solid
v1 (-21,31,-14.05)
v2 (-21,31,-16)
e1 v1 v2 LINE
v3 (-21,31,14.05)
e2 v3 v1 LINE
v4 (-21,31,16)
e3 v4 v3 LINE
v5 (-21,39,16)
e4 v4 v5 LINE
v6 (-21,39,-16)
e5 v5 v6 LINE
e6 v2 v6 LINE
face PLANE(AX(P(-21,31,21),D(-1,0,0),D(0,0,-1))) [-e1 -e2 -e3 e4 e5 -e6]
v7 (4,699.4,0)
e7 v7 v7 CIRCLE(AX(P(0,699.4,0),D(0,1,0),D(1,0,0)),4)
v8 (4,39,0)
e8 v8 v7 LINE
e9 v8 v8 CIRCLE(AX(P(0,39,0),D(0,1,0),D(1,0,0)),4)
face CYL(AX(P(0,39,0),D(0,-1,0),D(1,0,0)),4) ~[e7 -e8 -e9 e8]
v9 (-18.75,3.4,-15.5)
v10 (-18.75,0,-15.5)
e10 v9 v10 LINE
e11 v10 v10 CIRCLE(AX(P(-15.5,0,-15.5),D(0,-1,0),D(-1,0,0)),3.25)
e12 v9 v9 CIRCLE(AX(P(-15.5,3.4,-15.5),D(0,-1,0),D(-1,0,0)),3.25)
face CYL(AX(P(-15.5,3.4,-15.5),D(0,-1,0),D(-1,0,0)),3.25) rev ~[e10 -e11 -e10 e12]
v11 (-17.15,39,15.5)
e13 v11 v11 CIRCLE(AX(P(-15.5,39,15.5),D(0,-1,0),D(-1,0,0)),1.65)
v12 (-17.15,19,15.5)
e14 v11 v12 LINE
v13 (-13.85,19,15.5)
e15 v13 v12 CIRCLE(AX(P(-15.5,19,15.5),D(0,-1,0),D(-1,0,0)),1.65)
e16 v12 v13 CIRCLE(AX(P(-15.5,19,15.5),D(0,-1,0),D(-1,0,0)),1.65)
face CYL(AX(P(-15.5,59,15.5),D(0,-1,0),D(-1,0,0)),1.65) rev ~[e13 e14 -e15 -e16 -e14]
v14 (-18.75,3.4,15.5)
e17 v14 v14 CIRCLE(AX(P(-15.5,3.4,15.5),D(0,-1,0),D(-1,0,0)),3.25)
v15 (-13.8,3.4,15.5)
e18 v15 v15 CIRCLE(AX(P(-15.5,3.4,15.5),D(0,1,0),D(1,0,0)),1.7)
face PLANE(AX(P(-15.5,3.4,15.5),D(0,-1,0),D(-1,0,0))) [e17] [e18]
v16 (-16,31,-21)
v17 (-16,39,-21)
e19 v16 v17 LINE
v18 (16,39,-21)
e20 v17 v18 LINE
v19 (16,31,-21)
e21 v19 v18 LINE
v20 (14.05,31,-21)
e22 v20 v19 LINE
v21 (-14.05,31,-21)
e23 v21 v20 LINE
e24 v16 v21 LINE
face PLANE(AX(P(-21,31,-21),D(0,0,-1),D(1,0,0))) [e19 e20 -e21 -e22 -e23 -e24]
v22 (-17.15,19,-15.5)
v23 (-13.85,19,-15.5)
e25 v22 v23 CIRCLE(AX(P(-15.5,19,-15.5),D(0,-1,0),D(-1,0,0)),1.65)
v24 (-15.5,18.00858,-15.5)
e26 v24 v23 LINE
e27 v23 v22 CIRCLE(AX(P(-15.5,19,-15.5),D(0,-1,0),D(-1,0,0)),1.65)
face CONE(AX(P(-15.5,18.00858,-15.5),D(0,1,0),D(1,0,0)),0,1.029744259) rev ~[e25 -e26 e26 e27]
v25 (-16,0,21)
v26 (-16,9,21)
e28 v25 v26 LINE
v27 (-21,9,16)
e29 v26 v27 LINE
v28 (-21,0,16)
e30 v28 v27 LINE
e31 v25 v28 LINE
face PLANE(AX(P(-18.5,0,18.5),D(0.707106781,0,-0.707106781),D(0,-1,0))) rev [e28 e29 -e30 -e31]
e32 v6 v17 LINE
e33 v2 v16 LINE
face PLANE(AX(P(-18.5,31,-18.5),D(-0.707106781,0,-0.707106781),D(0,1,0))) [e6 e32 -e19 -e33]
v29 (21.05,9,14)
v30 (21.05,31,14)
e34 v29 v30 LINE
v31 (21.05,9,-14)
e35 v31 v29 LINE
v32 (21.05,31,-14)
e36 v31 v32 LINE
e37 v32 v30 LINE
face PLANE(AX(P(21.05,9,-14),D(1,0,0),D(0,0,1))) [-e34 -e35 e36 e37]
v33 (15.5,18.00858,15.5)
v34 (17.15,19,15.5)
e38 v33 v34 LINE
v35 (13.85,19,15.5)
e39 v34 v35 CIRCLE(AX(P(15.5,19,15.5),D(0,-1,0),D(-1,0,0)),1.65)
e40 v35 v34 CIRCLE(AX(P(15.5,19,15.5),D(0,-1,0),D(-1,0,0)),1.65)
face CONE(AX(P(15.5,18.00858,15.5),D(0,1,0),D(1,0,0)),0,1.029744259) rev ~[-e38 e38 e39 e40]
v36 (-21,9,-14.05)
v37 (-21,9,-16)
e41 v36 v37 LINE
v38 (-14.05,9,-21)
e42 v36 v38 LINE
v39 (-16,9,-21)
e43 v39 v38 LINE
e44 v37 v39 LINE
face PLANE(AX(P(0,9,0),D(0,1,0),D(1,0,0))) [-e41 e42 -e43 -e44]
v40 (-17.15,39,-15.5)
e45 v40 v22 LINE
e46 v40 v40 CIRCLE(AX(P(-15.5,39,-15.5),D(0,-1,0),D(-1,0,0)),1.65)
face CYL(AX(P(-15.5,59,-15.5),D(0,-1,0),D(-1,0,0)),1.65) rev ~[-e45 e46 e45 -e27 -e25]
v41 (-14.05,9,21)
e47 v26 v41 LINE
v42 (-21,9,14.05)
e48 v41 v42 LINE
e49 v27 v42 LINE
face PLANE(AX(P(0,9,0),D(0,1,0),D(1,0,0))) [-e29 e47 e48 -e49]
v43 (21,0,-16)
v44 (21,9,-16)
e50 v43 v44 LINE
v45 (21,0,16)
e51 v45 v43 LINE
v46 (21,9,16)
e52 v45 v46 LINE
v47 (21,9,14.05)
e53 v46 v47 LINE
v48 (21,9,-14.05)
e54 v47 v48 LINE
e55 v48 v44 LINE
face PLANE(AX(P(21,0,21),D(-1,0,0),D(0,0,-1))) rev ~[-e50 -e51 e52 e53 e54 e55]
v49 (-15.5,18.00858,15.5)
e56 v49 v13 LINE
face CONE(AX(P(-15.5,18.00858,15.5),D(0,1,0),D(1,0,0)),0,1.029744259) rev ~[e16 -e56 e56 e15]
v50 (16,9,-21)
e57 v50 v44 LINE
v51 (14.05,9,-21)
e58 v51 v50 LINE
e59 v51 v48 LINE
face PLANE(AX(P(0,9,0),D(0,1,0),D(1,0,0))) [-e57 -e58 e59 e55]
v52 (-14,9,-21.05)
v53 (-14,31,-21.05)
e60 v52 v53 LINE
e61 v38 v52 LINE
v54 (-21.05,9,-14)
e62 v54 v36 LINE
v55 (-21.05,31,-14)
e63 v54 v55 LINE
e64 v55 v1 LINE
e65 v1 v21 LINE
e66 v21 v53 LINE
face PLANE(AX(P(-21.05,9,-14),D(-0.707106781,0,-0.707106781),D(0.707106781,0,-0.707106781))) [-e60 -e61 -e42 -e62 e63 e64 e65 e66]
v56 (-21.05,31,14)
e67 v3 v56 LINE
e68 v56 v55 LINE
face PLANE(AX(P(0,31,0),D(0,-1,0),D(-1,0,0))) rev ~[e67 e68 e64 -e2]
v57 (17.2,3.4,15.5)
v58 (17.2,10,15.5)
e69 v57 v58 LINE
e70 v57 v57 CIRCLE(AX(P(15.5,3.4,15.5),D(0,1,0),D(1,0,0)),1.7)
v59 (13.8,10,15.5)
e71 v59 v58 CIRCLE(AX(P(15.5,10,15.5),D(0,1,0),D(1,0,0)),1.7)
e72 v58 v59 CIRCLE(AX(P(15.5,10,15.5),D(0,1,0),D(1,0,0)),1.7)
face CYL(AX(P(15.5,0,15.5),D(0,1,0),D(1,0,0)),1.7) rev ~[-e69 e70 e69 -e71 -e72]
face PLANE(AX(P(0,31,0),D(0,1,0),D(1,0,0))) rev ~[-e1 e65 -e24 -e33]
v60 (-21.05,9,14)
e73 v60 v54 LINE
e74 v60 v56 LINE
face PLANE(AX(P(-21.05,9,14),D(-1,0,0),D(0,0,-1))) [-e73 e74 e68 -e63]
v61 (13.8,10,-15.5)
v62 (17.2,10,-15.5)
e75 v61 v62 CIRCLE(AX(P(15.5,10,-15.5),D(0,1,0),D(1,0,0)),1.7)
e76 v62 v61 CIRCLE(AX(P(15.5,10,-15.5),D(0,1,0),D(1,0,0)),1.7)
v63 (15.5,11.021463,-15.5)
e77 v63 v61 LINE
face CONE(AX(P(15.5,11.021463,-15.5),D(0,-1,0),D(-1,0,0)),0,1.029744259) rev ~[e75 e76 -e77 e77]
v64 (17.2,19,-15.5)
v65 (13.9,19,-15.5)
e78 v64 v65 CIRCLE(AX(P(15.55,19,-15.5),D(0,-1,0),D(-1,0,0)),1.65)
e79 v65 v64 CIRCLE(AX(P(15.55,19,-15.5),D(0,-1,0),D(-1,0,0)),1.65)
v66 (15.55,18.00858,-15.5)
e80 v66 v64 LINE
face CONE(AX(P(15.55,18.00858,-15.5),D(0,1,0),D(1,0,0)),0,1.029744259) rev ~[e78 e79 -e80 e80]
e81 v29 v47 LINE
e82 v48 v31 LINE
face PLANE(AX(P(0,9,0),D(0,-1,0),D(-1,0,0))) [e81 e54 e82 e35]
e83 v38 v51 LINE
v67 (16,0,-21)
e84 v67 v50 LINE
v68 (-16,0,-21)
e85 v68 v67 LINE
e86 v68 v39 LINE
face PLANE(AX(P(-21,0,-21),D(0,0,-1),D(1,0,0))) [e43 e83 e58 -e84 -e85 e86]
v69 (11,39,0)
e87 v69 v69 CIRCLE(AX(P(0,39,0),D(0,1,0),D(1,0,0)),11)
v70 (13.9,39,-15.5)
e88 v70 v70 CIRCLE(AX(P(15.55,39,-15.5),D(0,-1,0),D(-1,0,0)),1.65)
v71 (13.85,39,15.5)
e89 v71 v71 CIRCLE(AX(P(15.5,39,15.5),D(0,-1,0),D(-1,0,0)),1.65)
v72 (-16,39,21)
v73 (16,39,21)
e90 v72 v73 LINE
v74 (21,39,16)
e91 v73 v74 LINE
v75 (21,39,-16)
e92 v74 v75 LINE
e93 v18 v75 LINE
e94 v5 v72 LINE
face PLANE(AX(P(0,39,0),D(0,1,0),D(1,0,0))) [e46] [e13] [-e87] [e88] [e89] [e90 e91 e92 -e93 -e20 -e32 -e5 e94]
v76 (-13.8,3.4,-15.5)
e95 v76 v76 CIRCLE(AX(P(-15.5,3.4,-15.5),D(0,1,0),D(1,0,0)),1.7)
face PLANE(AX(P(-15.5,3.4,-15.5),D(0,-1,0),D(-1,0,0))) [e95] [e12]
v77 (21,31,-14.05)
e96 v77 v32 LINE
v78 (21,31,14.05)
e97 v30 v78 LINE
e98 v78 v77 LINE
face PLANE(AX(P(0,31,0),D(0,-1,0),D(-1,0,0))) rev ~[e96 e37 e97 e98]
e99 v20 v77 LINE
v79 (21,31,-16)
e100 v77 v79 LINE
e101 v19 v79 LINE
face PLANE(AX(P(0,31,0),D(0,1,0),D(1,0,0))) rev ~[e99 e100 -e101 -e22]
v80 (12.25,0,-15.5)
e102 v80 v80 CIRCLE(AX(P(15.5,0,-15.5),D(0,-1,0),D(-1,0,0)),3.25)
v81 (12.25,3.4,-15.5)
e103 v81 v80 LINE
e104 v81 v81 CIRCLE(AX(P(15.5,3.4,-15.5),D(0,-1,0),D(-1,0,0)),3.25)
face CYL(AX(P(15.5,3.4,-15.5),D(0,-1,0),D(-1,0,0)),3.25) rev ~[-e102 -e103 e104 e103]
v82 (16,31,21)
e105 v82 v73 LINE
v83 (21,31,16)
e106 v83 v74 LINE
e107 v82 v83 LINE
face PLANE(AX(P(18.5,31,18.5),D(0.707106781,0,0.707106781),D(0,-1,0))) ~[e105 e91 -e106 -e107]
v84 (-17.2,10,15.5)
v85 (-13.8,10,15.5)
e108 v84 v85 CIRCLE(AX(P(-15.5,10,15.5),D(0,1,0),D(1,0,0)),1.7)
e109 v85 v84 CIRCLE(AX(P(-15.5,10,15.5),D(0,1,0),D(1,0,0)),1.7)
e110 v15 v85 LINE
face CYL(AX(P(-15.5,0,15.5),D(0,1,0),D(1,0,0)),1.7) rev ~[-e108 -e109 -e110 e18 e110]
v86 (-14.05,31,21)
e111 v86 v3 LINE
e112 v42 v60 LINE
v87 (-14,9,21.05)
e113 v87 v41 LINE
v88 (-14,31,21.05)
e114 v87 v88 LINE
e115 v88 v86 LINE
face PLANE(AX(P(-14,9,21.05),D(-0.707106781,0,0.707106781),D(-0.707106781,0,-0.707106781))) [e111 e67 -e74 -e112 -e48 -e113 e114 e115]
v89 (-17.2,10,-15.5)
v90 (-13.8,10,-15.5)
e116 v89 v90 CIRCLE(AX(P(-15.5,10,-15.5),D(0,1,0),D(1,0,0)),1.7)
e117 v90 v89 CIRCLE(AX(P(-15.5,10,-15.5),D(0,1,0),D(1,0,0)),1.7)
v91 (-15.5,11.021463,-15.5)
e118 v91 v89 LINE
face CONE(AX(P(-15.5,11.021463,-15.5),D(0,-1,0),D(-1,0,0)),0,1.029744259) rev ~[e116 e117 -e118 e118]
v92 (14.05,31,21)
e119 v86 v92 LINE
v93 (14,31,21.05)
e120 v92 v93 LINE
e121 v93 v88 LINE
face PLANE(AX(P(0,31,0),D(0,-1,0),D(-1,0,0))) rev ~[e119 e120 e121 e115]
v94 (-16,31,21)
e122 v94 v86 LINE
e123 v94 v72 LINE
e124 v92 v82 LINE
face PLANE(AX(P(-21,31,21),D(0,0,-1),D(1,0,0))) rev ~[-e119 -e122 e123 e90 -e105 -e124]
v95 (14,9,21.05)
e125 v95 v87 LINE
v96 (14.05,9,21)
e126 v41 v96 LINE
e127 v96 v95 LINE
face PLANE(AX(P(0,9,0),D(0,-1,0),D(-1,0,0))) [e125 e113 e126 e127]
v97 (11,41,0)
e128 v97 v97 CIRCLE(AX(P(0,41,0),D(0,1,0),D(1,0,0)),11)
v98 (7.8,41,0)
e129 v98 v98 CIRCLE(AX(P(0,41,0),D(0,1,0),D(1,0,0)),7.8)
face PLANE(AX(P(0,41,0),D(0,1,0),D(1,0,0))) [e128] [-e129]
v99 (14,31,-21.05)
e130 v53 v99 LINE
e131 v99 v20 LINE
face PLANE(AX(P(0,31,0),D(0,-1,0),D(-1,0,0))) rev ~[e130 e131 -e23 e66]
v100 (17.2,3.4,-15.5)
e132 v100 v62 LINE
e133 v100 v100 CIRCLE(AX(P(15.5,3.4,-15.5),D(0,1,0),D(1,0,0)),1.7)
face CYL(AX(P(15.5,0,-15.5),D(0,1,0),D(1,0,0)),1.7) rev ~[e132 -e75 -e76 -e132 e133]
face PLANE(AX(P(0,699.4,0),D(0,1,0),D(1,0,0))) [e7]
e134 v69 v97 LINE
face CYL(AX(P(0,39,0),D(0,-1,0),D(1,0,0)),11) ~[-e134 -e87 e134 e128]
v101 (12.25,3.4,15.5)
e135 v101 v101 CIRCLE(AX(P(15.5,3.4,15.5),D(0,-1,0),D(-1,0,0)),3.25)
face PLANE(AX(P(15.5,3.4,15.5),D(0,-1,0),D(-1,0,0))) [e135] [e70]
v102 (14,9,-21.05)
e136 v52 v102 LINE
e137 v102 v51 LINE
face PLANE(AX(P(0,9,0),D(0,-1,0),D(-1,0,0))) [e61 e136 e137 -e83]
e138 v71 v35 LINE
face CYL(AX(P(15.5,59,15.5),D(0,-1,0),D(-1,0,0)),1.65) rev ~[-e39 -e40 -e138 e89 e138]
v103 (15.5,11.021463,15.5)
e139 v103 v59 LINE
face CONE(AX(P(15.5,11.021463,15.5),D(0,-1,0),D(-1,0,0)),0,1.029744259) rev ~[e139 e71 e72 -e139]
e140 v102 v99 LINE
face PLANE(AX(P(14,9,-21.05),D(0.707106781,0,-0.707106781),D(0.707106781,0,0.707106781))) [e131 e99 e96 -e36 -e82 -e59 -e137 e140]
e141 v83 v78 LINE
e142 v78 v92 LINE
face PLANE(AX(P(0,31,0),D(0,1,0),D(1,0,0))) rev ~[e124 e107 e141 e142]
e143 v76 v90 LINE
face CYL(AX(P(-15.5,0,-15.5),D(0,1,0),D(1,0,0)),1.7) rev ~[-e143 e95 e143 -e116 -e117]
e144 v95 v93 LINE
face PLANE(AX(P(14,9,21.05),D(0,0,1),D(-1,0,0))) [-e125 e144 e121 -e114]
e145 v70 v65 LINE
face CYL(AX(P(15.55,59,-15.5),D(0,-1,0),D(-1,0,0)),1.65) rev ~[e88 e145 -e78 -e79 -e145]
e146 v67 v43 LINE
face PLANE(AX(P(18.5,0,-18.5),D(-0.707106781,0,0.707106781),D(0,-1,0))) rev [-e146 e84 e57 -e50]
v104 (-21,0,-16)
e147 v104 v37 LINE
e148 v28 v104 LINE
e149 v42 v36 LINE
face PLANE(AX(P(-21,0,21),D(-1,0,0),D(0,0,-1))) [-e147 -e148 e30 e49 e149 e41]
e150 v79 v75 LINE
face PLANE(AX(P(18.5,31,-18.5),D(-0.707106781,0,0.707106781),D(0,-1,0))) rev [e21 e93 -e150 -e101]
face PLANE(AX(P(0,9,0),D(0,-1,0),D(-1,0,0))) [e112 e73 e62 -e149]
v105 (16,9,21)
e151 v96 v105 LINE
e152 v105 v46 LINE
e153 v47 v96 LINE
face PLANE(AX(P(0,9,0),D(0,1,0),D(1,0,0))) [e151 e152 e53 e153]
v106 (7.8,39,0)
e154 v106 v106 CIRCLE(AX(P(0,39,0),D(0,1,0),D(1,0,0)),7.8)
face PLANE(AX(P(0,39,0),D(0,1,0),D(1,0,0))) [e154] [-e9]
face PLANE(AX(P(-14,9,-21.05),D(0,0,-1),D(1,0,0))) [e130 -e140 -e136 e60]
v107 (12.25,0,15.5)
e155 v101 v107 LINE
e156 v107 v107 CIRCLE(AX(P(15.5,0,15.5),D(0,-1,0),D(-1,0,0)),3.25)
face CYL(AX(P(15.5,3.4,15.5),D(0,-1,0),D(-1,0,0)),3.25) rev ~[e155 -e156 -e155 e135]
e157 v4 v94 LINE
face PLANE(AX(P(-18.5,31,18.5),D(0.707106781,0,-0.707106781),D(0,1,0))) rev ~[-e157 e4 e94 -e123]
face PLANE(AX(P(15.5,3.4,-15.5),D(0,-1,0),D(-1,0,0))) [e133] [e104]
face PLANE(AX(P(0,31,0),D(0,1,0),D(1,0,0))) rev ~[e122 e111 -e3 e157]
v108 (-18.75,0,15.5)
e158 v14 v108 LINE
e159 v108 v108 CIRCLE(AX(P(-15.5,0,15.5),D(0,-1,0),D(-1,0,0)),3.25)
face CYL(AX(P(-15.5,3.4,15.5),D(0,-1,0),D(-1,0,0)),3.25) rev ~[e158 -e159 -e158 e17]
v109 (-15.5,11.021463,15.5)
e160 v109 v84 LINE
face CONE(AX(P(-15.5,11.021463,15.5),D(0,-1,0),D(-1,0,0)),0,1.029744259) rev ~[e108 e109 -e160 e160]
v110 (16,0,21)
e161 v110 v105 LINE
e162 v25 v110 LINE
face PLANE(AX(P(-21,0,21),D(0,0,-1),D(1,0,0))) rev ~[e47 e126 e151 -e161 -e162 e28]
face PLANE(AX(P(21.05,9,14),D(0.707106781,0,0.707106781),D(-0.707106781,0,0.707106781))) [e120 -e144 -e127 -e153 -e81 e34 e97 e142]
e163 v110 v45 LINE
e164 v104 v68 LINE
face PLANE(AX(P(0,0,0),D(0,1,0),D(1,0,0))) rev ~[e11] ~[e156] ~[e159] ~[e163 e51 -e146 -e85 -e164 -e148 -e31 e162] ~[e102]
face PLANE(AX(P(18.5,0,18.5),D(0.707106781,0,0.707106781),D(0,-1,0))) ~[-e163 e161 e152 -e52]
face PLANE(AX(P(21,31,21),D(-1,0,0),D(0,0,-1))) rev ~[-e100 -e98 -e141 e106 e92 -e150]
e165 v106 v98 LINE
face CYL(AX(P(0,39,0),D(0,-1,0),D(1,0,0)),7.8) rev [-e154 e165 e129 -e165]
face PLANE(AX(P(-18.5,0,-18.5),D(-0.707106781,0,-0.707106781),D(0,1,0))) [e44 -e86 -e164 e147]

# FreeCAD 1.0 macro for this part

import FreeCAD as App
import Part
import Sketcher

V = App.Vector
Q = App.Units.Quantity


def edges_at(feature, points):
    """Names of the edges that pass closest to the given points."""
    edges = feature.Shape.Edges
    near = lambda p: min(range(len(edges)), key=lambda i: edges[i].distToShape(Part.Vertex(*p))[0])
    return sorted({f"Edge{near(p) + 1}" for p in points})


def add_polygon(sketch, points):
    """Adds a closed chain of lines whose ends are joined by coincident constraints."""
    first, n = sketch.GeometryCount, len(points)
    for a, b in zip(points, points[1:] + points[:1]):
        sketch.addGeometry(Part.LineSegment(App.Vector(*a, 0), App.Vector(*b, 0)), False)
    for i in range(n):
        sketch.addConstraint(Sketcher.Constraint("Coincident", first + i, 2, first + (i + 1) % n, 1))

doc = App.newDocument("Part")
body = doc.addObject("PartDesign::Body", "Body")

# Sketch on XZ plane
sketch1 = body.newObject("Sketcher::SketchObject", "Sketch")
sketch1.AttachmentSupport = (doc.getObject("XZ_Plane"), [""])
sketch1.MapMode = "FlatFace"
add_polygon(sketch1, [(-21, -21), (-21, 21), (21, 21), (21, -21)])  # lines 0-3
sketch1.addConstraint(Sketcher.Constraint("Vertical", 0))
sketch1.addConstraint(Sketcher.Constraint("Horizontal", 1))
sketch1.addConstraint(Sketcher.Constraint("Vertical", 2))
sketch1.addConstraint(Sketcher.Constraint("Horizontal", 3))
sketch1.addConstraint(Sketcher.Constraint("Symmetric", 0, 2, 2, 2, -1, 1))
sketch1.addConstraint(Sketcher.Constraint("Equal", 3, 0))
sketch1.addConstraint(Sketcher.Constraint("DistanceX", 1, 1, 1, 2, Q("42 mm")))
pad1 = body.newObject("PartDesign::Pad", "Pad")
pad1.Profile = sketch1
pad1.Length = 9
pad1.Reversed = True

# Sketch on XZ plane
sketch2 = body.newObject("Sketcher::SketchObject", "Sketch001")
sketch2.AttachmentSupport = (doc.getObject("XZ_Plane"), [""])
sketch2.MapMode = "FlatFace"
sketch2.AttachmentOffset = App.Placement(V(0, 0, -9), App.Rotation())
add_polygon(sketch2, [(21.05, -14), (14, -21.05), (-14, -21.05), (-21.05, -14), (-21.05, 14), (-14, 21.05), (14, 21.05), (21.05, 14)])  # lines 0-7
sketch2.addConstraint(Sketcher.Constraint("Horizontal", 1))
sketch2.addConstraint(Sketcher.Constraint("Vertical", 3))
sketch2.addConstraint(Sketcher.Constraint("Horizontal", 5))
sketch2.addConstraint(Sketcher.Constraint("Vertical", 7))
sketch2.addConstraint(Sketcher.Constraint("Symmetric", 0, 2, 4, 2, -1, 1))
sketch2.addConstraint(Sketcher.Constraint("Symmetric", 2, 2, 6, 2, -1, 1))
sketch2.addConstraint(Sketcher.Constraint("Perpendicular", 0, 2))
sketch2.addConstraint(Sketcher.Constraint("Perpendicular", 2, 4))
sketch2.addConstraint(Sketcher.Constraint("Perpendicular", 4, 6))
sketch2.addConstraint(Sketcher.Constraint("Horizontal", 3, 2, 6, 2))
sketch2.addConstraint(Sketcher.Constraint("Vertical", 1, 2, 4, 2))
sketch2.addConstraint(Sketcher.Constraint("Equal", 5, 3))
sketch2.addConstraint(Sketcher.Constraint("DistanceX", 1, 2, 1, 1, Q("28 mm")))
sketch2.addConstraint(Sketcher.Constraint("DistanceY", 1, 2, 4, 2, Q("42.1 mm")))
pad2 = body.newObject("PartDesign::Pad", "Pad001")
pad2.Profile = sketch2
pad2.Length = 22
pad2.Reversed = True

# Sketch on XZ plane
sketch3 = body.newObject("Sketcher::SketchObject", "Sketch002")
sketch3.AttachmentSupport = (doc.getObject("XZ_Plane"), [""])
sketch3.MapMode = "FlatFace"
sketch3.AttachmentOffset = App.Placement(V(0, 0, -31), App.Rotation())
add_polygon(sketch3, [(-21, -21), (-21, 21), (21, 21), (21, -21)])  # lines 0-3
sketch3.addConstraint(Sketcher.Constraint("Vertical", 0))
sketch3.addConstraint(Sketcher.Constraint("Horizontal", 1))
sketch3.addConstraint(Sketcher.Constraint("Vertical", 2))
sketch3.addConstraint(Sketcher.Constraint("Horizontal", 3))
sketch3.addConstraint(Sketcher.Constraint("Symmetric", 0, 2, 2, 2, -1, 1))
sketch3.addConstraint(Sketcher.Constraint("Equal", 3, 0))
sketch3.addConstraint(Sketcher.Constraint("DistanceX", 1, 1, 1, 2, Q("42 mm")))
pad3 = body.newObject("PartDesign::Pad", "Pad002")
pad3.Profile = sketch3
pad3.Length = 8
pad3.Reversed = True

# Sketch on XZ plane
sketch4 = body.newObject("Sketcher::SketchObject", "Sketch003")
sketch4.AttachmentSupport = (doc.getObject("XZ_Plane"), [""])
sketch4.MapMode = "FlatFace"
sketch4.AttachmentOffset = App.Placement(V(0, 0, -39), App.Rotation())
sketch4.addGeometry(Part.Circle(V(0, 0, 0), V(0, 0, 1), 11), False)
sketch4.addGeometry(Part.Circle(V(0, 0, 0), V(0, 0, 1), 7.8), False)
sketch4.addConstraint(Sketcher.Constraint("Coincident", 0, 3, -1, 1))
sketch4.addConstraint(Sketcher.Constraint("Coincident", 1, 3, -1, 1))
sketch4.addConstraint(Sketcher.Constraint("Diameter", 0, Q("22 mm")))
sketch4.addConstraint(Sketcher.Constraint("Diameter", 1, Q("15.6 mm")))
pad4 = body.newObject("PartDesign::Pad", "Pad003")
pad4.Profile = sketch4
pad4.Length = 2
pad4.Reversed = True

# Sketch on XZ plane
sketch5 = body.newObject("Sketcher::SketchObject", "Sketch004")
sketch5.AttachmentSupport = (doc.getObject("XZ_Plane"), [""])
sketch5.MapMode = "FlatFace"
sketch5.AttachmentOffset = App.Placement(V(0, 0, -39), App.Rotation())
sketch5.addGeometry(Part.Circle(V(-15.5, 15.5, 0), V(0, 0, 1), 1.65), False)
sketch5.addGeometry(Part.Circle(V(-15.5, -15.5, 0), V(0, 0, 1), 1.65), False)
sketch5.addGeometry(Part.Circle(V(15.55, -15.5, 0), V(0, 0, 1), 1.65), False)
sketch5.addGeometry(Part.Circle(V(15.5, 15.5, 0), V(0, 0, 1), 1.65), False)
sketch5.addConstraint(Sketcher.Constraint("Equal", 0, 1))
sketch5.addConstraint(Sketcher.Constraint("Equal", 1, 2))
sketch5.addConstraint(Sketcher.Constraint("Equal", 2, 3))
sketch5.addConstraint(Sketcher.Constraint("Symmetric", 1, 3, 3, 3, -1, 1))
sketch5.addConstraint(Sketcher.Constraint("Symmetric", 0, 3, 3, 3, -2))
sketch5.addConstraint(Sketcher.Constraint("Horizontal", 1, 3, 2, 3))
sketch5.addConstraint(Sketcher.Constraint("Diameter", 0, Q("3.3 mm")))
sketch5.addConstraint(Sketcher.Constraint("DistanceY", 1, 3, 0, 3, Q("31 mm")))
sketch5.addConstraint(Sketcher.Constraint("DistanceX", 0, 3, 3, 3, Q("31 mm")))
sketch5.addConstraint(Sketcher.Constraint("DistanceX", -1, 1, 2, 3, Q("15.55 mm")))
doc.recompute()
hole = body.newObject("PartDesign::Hole", "Hole")
hole.Profile = sketch5
hole.ThreadType = "None"
hole.Diameter = 3.3
hole.DepthType = "Dimension"
hole.Depth = 20
hole.DrillPoint = "Angled"
hole.DrillPointAngle = 118
hole.Reversed = True
doc.recompute()

chamfer = body.newObject("PartDesign::Chamfer", "Chamfer")
chamfer.Base = (hole, edges_at(hole, [
    (-21, 35, -21),
    (-21, 35, 21),
    (21, 35, 21),
    (21, 35, -21),
    (21, 4.5, -21),
    (-21, 4.5, -21),
    (-21, 4.5, 21),
    (21, 4.5, 21),
]))
chamfer.Size = 5

# Sketch on XZ plane
sketch6 = body.newObject("Sketcher::SketchObject", "Sketch005")
sketch6.AttachmentSupport = (doc.getObject("XZ_Plane"), [""])
sketch6.MapMode = "FlatFace"
sketch6.addGeometry(Part.Circle(V(15.5, -15.5, 0), V(0, 0, 1), 1.7), False)
sketch6.addGeometry(Part.Circle(V(-15.5, -15.5, 0), V(0, 0, 1), 1.7), False)
sketch6.addGeometry(Part.Circle(V(-15.5, 15.5, 0), V(0, 0, 1), 1.7), False)
sketch6.addGeometry(Part.Circle(V(15.5, 15.5, 0), V(0, 0, 1), 1.7), False)
sketch6.addConstraint(Sketcher.Constraint("Equal", 0, 1))
sketch6.addConstraint(Sketcher.Constraint("Equal", 1, 2))
sketch6.addConstraint(Sketcher.Constraint("Equal", 2, 3))
sketch6.addConstraint(Sketcher.Constraint("Symmetric", 0, 3, 2, 3, -1, 1))
sketch6.addConstraint(Sketcher.Constraint("Symmetric", 1, 3, 3, 3, -1, 1))
sketch6.addConstraint(Sketcher.Constraint("Symmetric", 0, 3, 1, 3, -2))
sketch6.addConstraint(Sketcher.Constraint("Diameter", 0, Q("3.4 mm")))
sketch6.addConstraint(Sketcher.Constraint("DistanceX", 1, 3, 0, 3, Q("31 mm")))
sketch6.addConstraint(Sketcher.Constraint("DistanceY", 1, 3, 2, 3, Q("31 mm")))
doc.recompute()
hole2 = body.newObject("PartDesign::Hole", "Hole001")
hole2.Profile = sketch6
hole2.ThreadType = "None"
hole2.Diameter = 3.4
hole2.DepthType = "Dimension"
hole2.Depth = 10
hole2.DrillPoint = "Angled"
hole2.DrillPointAngle = 118
hole2.HoleCutType = "Counterbore"
hole2.HoleCutDiameter = 6.5
hole2.HoleCutDepth = 3.4

# Sketch on XZ plane
sketch7 = body.newObject("Sketcher::SketchObject", "Sketch006")
sketch7.AttachmentSupport = (doc.getObject("XZ_Plane"), [""])
sketch7.MapMode = "FlatFace"
sketch7.AttachmentOffset = App.Placement(V(0, 0, -39), App.Rotation())
sketch7.addGeometry(Part.Circle(V(0, 0, 0), V(0, 0, 1), 4), False)
sketch7.addConstraint(Sketcher.Constraint("Coincident", 0, 3, -1, 1))
sketch7.addConstraint(Sketcher.Constraint("Diameter", 0, Q("8 mm")))
pad5 = body.newObject("PartDesign::Pad", "Pad004")
pad5.Profile = sketch7
pad5.Length = 660.4
pad5.Reversed = True

doc.recompute()
